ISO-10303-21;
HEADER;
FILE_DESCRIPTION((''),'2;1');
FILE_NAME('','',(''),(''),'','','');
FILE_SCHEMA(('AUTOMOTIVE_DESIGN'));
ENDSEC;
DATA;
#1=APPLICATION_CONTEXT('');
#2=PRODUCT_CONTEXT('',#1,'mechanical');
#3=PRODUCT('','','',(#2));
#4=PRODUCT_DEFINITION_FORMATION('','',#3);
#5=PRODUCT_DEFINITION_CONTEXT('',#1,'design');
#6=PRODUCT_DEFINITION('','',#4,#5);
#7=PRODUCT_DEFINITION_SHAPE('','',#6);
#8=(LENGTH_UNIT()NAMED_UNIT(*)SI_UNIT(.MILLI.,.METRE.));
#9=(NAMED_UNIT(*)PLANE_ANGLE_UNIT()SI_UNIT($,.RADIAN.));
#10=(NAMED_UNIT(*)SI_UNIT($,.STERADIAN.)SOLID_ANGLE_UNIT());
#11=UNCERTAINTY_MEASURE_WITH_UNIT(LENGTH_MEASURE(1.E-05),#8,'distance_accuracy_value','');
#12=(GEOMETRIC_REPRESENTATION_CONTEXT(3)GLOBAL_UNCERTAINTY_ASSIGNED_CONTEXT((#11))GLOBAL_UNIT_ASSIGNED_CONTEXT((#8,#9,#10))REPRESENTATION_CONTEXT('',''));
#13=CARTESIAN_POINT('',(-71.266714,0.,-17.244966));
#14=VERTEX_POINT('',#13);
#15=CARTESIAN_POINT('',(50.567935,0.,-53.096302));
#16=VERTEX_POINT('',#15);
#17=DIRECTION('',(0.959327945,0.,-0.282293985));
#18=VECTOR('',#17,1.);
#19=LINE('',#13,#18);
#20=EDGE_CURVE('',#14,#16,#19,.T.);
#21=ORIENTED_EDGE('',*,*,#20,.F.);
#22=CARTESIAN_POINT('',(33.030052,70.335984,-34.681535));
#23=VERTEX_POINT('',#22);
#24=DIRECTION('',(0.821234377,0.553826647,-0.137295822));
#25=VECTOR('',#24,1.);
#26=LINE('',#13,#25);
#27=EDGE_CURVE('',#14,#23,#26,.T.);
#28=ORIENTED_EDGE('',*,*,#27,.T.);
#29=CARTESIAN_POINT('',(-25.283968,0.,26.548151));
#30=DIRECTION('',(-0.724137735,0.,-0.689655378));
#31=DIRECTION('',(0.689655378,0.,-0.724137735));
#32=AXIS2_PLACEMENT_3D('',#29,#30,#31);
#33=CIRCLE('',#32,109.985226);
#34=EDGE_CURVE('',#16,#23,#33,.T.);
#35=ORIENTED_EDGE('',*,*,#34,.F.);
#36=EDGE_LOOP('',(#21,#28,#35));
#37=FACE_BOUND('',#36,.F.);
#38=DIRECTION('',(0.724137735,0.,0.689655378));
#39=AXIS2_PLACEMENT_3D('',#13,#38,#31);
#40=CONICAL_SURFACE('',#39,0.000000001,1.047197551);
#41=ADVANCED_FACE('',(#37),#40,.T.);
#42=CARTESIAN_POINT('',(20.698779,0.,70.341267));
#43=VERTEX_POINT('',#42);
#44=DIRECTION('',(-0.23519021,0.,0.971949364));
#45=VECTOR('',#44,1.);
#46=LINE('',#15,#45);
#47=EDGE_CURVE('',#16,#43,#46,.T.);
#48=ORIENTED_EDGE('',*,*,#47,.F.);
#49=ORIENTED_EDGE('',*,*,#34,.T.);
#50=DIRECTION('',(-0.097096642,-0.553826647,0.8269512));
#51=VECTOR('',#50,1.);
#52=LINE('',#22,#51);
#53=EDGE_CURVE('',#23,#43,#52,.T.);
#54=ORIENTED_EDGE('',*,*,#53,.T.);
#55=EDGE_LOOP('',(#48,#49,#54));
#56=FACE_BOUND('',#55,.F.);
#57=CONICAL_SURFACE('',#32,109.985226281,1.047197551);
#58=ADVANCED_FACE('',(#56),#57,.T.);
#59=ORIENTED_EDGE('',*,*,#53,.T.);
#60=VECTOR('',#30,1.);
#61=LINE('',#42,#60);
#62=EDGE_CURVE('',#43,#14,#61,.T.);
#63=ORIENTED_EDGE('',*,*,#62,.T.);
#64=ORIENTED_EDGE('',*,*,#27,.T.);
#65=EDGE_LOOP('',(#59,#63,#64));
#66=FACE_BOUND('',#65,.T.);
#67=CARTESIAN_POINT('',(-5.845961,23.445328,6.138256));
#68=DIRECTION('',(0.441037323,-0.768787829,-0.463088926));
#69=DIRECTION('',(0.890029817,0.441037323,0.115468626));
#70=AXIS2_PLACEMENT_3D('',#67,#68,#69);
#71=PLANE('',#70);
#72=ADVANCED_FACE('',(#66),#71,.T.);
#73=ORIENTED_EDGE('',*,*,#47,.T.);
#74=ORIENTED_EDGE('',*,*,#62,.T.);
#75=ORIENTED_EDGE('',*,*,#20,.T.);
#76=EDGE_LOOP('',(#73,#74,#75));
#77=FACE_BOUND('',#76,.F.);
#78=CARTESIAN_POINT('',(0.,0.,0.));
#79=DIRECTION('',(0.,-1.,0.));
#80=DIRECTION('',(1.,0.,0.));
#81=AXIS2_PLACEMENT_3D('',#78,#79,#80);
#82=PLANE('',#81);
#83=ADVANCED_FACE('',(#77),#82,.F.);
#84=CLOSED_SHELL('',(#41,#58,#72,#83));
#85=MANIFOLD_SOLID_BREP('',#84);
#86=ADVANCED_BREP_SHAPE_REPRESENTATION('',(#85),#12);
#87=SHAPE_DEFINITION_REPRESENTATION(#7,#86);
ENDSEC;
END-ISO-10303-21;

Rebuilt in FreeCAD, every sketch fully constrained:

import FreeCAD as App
import Part
import Sketcher

V = App.Vector
Q = App.Units.Quantity


def add_polygon(sketch, points):
    """Adds a closed chain of lines whose ends are joined by coincident constraints."""
    first, n = sketch.GeometryCount, len(points)
    for a, b in zip(points, points[1:] + points[:1]):
        sketch.addGeometry(Part.LineSegment(App.Vector(*a, 0), App.Vector(*b, 0)), False)
    for i in range(n):
        sketch.addConstraint(Sketcher.Constraint("Coincident", first + i, 2, first + (i + 1) % n, 1))

doc = App.newDocument("Part")
body = doc.addObject("PartDesign::Body", "Body")

# Sketch on XZ plane
sketch1 = body.newObject("Sketcher::SketchObject", "Sketch")
sketch1.AttachmentSupport = (doc.getObject("XZ_Plane"), [""])
sketch1.MapMode = "FlatFace"
add_polygon(sketch1, [(21, 70), (-71, -17), (51, -53)])  # lines 0-2
sketch1.addGeometry(Part.LineSegment(V(21, 70, 0), V(-71, -17, 0)), True)  # axis
sketch1.addConstraint([
    Sketcher.Constraint("Coincident", 3, 1, 2, 2),
    Sketcher.Constraint("Coincident", 3, 2, 0, 2),
    Sketcher.Constraint("Equal", 0, 1),
    Sketcher.Constraint("Equal", 1, 2),
    Sketcher.Constraint("Distance", 0, Q("5 in")),
    Sketcher.Constraint("DistanceY", 1, 2, -1, 1, 53.096302),
    Sketcher.Constraint("DistanceX", -1, 1, 2, 2, 20.698779),
    Sketcher.Constraint("DistanceX", 0, 2, 1, 2, 121.834649),
])
revolution = body.newObject("PartDesign::Revolution", "Revolution")
revolution.Profile = sketch1
revolution.ReferenceAxis = (sketch1, ["Axis0"])
revolution.Angle = 320.245161

doc.recompute()
